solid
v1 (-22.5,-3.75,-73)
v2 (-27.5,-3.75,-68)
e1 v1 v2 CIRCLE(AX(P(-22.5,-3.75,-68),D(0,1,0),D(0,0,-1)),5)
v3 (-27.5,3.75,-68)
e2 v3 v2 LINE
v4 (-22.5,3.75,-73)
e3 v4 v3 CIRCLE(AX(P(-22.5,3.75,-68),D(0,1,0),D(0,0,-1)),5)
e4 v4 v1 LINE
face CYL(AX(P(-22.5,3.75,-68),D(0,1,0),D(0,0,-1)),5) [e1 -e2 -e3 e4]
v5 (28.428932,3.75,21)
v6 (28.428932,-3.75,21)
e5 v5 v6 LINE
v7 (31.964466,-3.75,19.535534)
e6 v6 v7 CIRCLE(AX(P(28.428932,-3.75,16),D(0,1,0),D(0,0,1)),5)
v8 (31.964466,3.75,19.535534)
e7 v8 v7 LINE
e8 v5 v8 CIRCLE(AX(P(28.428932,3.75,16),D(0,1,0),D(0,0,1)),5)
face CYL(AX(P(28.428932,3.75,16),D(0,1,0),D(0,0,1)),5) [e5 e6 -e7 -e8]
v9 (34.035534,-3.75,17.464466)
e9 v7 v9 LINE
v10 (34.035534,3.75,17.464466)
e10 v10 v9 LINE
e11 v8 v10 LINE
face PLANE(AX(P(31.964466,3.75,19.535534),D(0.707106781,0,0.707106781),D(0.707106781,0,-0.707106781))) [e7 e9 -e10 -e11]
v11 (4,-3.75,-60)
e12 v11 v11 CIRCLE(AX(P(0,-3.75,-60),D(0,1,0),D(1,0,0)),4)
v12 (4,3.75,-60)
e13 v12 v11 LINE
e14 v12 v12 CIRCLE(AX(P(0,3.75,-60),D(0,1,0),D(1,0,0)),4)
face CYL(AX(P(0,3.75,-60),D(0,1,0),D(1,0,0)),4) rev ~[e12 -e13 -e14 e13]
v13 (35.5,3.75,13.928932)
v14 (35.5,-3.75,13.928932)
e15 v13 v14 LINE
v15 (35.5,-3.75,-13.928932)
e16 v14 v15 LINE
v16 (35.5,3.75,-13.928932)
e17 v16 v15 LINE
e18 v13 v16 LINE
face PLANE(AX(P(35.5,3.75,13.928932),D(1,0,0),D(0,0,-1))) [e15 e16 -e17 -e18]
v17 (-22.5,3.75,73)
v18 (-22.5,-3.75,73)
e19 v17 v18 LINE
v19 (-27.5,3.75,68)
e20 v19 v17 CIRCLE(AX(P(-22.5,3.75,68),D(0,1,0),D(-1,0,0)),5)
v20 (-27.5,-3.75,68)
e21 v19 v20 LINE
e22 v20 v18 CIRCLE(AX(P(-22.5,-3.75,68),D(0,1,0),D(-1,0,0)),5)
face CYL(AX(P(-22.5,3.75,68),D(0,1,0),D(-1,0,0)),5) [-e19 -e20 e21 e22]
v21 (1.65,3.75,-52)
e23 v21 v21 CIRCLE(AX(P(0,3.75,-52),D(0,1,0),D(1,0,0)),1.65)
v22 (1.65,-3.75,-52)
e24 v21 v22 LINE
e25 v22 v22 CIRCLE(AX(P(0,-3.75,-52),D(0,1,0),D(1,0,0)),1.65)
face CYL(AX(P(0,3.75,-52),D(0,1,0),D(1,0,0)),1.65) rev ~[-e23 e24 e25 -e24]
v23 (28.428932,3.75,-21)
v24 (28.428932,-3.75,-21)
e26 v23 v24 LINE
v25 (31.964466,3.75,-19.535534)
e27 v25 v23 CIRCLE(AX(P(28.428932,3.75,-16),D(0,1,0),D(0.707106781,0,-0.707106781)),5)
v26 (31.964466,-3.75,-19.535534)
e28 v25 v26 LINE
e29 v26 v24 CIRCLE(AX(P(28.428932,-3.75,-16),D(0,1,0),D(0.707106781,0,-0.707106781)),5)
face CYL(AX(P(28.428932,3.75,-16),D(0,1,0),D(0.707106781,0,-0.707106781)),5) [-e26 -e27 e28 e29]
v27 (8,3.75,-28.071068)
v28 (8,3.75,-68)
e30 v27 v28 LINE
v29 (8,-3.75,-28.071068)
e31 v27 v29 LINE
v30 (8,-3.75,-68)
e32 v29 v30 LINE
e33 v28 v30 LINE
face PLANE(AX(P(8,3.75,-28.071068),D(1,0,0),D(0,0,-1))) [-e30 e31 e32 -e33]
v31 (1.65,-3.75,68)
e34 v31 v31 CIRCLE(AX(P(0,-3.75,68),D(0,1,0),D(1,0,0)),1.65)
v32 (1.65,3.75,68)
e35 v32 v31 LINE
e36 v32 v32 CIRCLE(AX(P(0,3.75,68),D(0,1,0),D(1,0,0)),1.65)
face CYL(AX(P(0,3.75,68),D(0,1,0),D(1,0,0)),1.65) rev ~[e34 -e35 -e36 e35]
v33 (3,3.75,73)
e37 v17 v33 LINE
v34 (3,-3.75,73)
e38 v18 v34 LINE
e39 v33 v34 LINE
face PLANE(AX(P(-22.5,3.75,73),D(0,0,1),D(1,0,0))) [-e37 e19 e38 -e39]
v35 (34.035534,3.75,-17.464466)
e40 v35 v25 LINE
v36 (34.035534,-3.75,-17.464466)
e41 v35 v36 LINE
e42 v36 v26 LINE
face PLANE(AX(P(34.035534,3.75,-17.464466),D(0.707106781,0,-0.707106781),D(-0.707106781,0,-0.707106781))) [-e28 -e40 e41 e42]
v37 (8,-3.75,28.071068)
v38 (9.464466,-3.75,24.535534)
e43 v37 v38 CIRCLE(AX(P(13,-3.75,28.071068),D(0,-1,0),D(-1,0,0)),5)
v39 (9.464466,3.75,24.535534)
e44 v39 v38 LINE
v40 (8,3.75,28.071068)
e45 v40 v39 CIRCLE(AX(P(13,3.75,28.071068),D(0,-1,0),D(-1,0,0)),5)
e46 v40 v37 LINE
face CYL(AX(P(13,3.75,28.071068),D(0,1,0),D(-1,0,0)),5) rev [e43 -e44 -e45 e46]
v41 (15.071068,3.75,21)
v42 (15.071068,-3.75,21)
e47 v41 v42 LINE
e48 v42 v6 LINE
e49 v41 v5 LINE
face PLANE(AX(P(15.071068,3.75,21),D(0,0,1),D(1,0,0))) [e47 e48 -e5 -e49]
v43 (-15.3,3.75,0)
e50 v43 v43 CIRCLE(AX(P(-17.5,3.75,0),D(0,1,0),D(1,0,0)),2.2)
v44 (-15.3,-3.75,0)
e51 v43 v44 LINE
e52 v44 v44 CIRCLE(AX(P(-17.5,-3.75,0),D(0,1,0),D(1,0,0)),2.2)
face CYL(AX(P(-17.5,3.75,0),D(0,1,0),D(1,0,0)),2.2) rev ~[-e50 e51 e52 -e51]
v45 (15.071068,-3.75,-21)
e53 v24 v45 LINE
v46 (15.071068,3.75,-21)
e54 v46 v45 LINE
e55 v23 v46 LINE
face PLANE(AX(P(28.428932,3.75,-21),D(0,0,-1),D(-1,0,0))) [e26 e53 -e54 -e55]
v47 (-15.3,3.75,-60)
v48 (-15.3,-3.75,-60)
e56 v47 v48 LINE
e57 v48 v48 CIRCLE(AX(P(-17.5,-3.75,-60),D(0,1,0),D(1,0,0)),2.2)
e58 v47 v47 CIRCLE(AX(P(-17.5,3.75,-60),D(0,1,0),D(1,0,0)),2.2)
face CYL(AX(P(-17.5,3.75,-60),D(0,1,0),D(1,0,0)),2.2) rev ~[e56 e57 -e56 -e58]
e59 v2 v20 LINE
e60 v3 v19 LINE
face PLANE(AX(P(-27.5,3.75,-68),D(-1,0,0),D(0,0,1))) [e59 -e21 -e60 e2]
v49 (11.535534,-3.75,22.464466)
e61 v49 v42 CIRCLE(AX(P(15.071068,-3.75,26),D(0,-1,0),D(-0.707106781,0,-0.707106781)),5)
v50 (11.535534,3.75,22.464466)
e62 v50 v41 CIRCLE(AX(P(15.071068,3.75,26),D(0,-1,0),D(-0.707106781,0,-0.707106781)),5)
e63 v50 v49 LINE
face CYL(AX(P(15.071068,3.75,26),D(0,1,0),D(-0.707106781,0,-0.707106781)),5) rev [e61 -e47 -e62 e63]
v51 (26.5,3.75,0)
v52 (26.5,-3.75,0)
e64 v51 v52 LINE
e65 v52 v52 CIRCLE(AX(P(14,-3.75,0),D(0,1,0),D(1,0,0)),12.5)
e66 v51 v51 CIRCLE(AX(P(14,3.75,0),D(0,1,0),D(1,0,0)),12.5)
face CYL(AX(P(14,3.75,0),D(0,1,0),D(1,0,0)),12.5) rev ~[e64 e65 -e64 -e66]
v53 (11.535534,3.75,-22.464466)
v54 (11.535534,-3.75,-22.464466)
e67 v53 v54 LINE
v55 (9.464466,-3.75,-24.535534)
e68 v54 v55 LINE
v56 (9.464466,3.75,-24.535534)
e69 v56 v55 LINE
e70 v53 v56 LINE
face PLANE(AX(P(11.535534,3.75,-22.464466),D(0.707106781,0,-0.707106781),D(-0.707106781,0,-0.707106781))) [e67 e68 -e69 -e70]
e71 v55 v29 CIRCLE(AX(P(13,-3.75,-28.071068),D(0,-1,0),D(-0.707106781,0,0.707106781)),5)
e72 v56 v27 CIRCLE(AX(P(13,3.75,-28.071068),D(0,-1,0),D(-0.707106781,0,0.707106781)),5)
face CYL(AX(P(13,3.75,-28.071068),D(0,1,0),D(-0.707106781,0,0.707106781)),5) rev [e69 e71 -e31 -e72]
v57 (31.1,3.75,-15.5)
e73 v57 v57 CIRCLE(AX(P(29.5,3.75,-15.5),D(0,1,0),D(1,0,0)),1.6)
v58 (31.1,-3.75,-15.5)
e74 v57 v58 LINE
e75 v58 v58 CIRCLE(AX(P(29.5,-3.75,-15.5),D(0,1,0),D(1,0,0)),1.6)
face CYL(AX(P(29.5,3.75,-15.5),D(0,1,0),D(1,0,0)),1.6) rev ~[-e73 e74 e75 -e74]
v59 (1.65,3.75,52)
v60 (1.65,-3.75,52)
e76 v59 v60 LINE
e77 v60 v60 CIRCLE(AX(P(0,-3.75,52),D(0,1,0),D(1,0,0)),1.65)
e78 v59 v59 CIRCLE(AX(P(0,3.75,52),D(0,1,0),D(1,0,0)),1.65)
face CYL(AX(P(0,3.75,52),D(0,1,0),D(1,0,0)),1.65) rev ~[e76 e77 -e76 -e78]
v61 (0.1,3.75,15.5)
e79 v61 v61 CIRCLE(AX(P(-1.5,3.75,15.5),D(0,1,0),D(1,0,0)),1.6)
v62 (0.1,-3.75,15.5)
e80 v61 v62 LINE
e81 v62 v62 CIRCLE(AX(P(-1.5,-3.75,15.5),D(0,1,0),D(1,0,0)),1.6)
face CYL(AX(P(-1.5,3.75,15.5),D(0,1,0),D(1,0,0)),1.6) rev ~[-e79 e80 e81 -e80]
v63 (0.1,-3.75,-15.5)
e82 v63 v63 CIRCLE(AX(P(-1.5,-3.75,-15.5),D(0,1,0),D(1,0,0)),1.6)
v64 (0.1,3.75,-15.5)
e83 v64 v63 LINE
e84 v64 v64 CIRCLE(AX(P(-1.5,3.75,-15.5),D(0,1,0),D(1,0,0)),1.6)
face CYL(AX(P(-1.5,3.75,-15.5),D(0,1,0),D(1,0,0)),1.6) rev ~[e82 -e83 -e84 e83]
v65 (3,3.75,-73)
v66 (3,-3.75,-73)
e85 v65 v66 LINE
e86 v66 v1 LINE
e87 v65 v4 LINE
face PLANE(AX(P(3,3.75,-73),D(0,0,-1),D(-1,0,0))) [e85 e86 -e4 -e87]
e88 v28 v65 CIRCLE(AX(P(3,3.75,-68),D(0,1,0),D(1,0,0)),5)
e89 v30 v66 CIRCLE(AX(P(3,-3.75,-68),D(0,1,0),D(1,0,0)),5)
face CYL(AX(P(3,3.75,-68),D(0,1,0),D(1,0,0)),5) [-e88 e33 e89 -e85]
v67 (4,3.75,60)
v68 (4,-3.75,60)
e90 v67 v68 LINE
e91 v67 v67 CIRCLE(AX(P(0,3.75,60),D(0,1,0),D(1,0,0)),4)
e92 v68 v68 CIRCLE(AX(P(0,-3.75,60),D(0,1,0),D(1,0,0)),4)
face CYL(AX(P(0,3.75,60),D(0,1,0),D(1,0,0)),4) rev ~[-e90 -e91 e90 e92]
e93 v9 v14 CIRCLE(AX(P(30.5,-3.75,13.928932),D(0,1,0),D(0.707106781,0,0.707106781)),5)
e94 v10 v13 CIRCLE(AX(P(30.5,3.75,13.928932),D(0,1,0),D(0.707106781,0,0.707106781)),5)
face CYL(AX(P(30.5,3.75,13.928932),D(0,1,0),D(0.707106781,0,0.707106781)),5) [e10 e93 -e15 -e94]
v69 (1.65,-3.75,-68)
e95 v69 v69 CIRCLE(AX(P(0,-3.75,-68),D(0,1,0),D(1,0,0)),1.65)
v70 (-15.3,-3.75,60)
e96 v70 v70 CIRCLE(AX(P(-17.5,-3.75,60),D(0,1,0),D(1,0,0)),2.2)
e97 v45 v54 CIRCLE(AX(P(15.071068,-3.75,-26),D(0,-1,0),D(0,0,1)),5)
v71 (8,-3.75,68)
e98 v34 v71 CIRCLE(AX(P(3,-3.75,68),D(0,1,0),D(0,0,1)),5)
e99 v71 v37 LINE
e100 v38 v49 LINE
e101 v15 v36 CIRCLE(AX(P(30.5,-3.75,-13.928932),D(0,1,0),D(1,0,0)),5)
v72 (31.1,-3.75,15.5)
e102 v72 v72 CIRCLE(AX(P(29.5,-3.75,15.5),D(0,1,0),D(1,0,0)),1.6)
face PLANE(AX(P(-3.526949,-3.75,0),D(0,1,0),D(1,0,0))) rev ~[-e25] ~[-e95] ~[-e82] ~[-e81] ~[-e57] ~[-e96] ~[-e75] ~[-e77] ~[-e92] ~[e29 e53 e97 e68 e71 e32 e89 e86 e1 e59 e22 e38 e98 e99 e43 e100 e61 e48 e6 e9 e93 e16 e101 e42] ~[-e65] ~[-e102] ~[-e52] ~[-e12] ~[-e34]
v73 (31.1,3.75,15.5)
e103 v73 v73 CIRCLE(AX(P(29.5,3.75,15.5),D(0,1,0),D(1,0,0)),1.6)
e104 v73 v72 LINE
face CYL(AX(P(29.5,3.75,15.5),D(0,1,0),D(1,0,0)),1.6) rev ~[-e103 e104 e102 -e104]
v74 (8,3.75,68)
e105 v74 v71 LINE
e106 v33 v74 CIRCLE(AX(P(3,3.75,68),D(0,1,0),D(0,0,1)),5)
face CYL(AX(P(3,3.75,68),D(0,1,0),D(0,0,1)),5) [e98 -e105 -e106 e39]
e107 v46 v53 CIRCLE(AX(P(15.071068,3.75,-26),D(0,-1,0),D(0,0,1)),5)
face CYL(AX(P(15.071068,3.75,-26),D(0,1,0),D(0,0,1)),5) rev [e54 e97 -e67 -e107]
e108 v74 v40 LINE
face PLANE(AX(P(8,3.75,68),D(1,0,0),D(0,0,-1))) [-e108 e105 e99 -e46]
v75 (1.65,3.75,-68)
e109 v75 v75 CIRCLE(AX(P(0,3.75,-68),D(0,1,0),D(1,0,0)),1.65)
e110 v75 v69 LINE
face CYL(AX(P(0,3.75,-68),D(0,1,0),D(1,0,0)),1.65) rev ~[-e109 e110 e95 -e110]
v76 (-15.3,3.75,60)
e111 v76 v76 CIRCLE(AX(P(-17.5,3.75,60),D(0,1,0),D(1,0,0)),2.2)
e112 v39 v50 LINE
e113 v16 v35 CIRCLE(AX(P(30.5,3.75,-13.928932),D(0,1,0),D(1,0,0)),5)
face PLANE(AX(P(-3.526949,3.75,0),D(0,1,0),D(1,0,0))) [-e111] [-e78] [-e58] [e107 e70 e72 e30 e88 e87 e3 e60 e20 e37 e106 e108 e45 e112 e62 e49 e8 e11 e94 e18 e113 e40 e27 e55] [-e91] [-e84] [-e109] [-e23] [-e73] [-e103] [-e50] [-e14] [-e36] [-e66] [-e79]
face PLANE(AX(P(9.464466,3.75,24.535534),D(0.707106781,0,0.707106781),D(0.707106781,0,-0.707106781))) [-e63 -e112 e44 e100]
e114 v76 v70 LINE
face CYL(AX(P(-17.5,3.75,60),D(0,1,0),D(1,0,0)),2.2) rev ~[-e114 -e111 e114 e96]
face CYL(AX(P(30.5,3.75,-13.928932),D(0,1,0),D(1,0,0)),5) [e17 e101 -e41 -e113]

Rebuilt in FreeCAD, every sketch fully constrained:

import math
import FreeCAD as App
import Part
import Sketcher

V = App.Vector
Q = App.Units.Quantity

doc = App.newDocument("Part")
body = doc.addObject("PartDesign::Body", "Body")

# Sketch on XZ plane
sketch1 = body.newObject("Sketcher::SketchObject", "Sketch")
sketch1.AttachmentSupport = (doc.getObject("XZ_Plane"), [""])
sketch1.MapMode = "FlatFace"
sketch1.AttachmentOffset = App.Placement(V(0, 0, -3.75), App.Rotation())
sketch1.addGeometry(Part.LineSegment(V(34, -17.5, 0), V(32, -19.5, 0)), False)
sketch1.addGeometry(Part.ArcOfCircle(Part.Circle(V(28.4, -16, 0), V(0, 0, 1), 5), math.radians(-90), math.radians(-45)), False)
sketch1.addGeometry(Part.LineSegment(V(28.4, -21, 0), V(15.1, -21, 0)), False)
sketch1.addGeometry(Part.ArcOfCircle(Part.Circle(V(15.1, -26, 0), V(0, 0, 1), 5), math.radians(90), math.radians(135)), False)
sketch1.addGeometry(Part.LineSegment(V(11.5, -22.5, 0), V(9.5, -24.5, 0)), False)
sketch1.addGeometry(Part.ArcOfCircle(Part.Circle(V(13, -28.1, 0), V(0, 0, 1), 5), math.radians(135), math.radians(180)), False)
sketch1.addGeometry(Part.LineSegment(V(8, -28.1, 0), V(8, -68, 0)), False)
sketch1.addGeometry(Part.ArcOfCircle(Part.Circle(V(3, -68, 0), V(0, 0, 1), 5), math.radians(-90), math.radians(0)), False)
sketch1.addGeometry(Part.LineSegment(V(3, -73, 0), V(-22.5, -73, 0)), False)
sketch1.addGeometry(Part.ArcOfCircle(Part.Circle(V(-22.5, -68, 0), V(0, 0, 1), 5), math.radians(180), math.radians(270)), False)
sketch1.addGeometry(Part.LineSegment(V(-27.5, -68, 0), V(-27.5, 68, 0)), False)
sketch1.addGeometry(Part.ArcOfCircle(Part.Circle(V(-22.5, 68, 0), V(0, 0, 1), 5), math.radians(90), math.radians(180)), False)
sketch1.addGeometry(Part.LineSegment(V(-22.5, 73, 0), V(3, 73, 0)), False)
sketch1.addGeometry(Part.ArcOfCircle(Part.Circle(V(3, 68, 0), V(0, 0, 1), 5), math.radians(0), math.radians(90)), False)
sketch1.addGeometry(Part.LineSegment(V(8, 68, 0), V(8, 28.1, 0)), False)
sketch1.addGeometry(Part.ArcOfCircle(Part.Circle(V(13, 28.1, 0), V(0, 0, 1), 5), math.radians(180), math.radians(225)), False)
sketch1.addGeometry(Part.LineSegment(V(9.5, 24.5, 0), V(11.5, 22.5, 0)), False)
sketch1.addGeometry(Part.ArcOfCircle(Part.Circle(V(15.1, 26, 0), V(0, 0, 1), 5), math.radians(-135), math.radians(-90)), False)
sketch1.addGeometry(Part.LineSegment(V(15.1, 21, 0), V(28.4, 21, 0)), False)
sketch1.addGeometry(Part.ArcOfCircle(Part.Circle(V(28.4, 16, 0), V(0, 0, 1), 5), math.radians(45), math.radians(90)), False)
sketch1.addGeometry(Part.LineSegment(V(32, 19.5, 0), V(34, 17.5, 0)), False)
sketch1.addGeometry(Part.ArcOfCircle(Part.Circle(V(30.5, 13.9, 0), V(0, 0, 1), 5), math.radians(0), math.radians(45)), False)
sketch1.addGeometry(Part.LineSegment(V(35.5, 13.9, 0), V(35.5, -13.9, 0)), False)
sketch1.addGeometry(Part.ArcOfCircle(Part.Circle(V(30.5, -13.9, 0), V(0, 0, 1), 5), math.radians(-45), math.radians(0)), False)
sketch1.addGeometry(Part.Circle(V(-17.5, 60, 0), V(0, 0, 1), 2.2), False)
sketch1.addGeometry(Part.Circle(V(0, 68, 0), V(0, 0, 1), 1.6), False)
sketch1.addGeometry(Part.Circle(V(0, 60, 0), V(0, 0, 1), 4), False)
sketch1.addGeometry(Part.Circle(V(0, 52, 0), V(0, 0, 1), 1.6), False)
sketch1.addGeometry(Part.Circle(V(-1.5, 15.5, 0), V(0, 0, 1), 1.6), False)
sketch1.addGeometry(Part.Circle(V(29.5, 15.5, 0), V(0, 0, 1), 1.6), False)
sketch1.addGeometry(Part.Circle(V(-17.5, 0, 0), V(0, 0, 1), 2.2), False)
sketch1.addGeometry(Part.Circle(V(-1.5, -15.5, 0), V(0, 0, 1), 1.6), False)
sketch1.addGeometry(Part.Circle(V(-17.5, -60, 0), V(0, 0, 1), 2.2), False)
sketch1.addGeometry(Part.Circle(V(0, -52, 0), V(0, 0, 1), 1.6), False)
sketch1.addGeometry(Part.Circle(V(0, -60, 0), V(0, 0, 1), 4), False)
sketch1.addGeometry(Part.Circle(V(0, -68, 0), V(0, 0, 1), 1.6), False)
sketch1.addGeometry(Part.Circle(V(14, 0, 0), V(0, 0, 1), 12.5), False)
sketch1.addGeometry(Part.Circle(V(29.5, -15.5, 0), V(0, 0, 1), 1.6), False)
sketch1.addConstraint(Sketcher.Constraint("Tangent", 0, 2, 1, 2))
sketch1.addConstraint(Sketcher.Constraint("Tangent", 1, 1, 2, 1))
sketch1.addConstraint(Sketcher.Constraint("Tangent", 2, 2, 3, 1))
sketch1.addConstraint(Sketcher.Constraint("Tangent", 3, 2, 4, 1))
sketch1.addConstraint(Sketcher.Constraint("Tangent", 4, 2, 5, 1))
sketch1.addConstraint(Sketcher.Constraint("Tangent", 5, 2, 6, 1))
sketch1.addConstraint(Sketcher.Constraint("Tangent", 6, 2, 7, 2))
sketch1.addConstraint(Sketcher.Constraint("Tangent", 7, 1, 8, 1))
sketch1.addConstraint(Sketcher.Constraint("Tangent", 8, 2, 9, 2))
sketch1.addConstraint(Sketcher.Constraint("Tangent", 9, 1, 10, 1))
sketch1.addConstraint(Sketcher.Constraint("Tangent", 10, 2, 11, 2))
sketch1.addConstraint(Sketcher.Constraint("Tangent", 11, 1, 12, 1))
sketch1.addConstraint(Sketcher.Constraint("Tangent", 12, 2, 13, 2))
sketch1.addConstraint(Sketcher.Constraint("Tangent", 13, 1, 14, 1))
sketch1.addConstraint(Sketcher.Constraint("Tangent", 14, 2, 15, 1))
sketch1.addConstraint(Sketcher.Constraint("Tangent", 15, 2, 16, 1))
sketch1.addConstraint(Sketcher.Constraint("Tangent", 16, 2, 17, 1))
sketch1.addConstraint(Sketcher.Constraint("Tangent", 17, 2, 18, 1))
sketch1.addConstraint(Sketcher.Constraint("Tangent", 18, 2, 19, 2))
sketch1.addConstraint(Sketcher.Constraint("Tangent", 19, 1, 20, 1))
sketch1.addConstraint(Sketcher.Constraint("Tangent", 20, 2, 21, 2))
sketch1.addConstraint(Sketcher.Constraint("Tangent", 21, 1, 22, 1))
sketch1.addConstraint(Sketcher.Constraint("Tangent", 22, 2, 23, 2))
sketch1.addConstraint(Sketcher.Constraint("Tangent", 23, 1, 0, 1))
sketch1.addConstraint(Sketcher.Constraint("Horizontal", 2))
sketch1.addConstraint(Sketcher.Constraint("Vertical", 6))
sketch1.addConstraint(Sketcher.Constraint("Horizontal", 8))
sketch1.addConstraint(Sketcher.Constraint("Vertical", 10))
sketch1.addConstraint(Sketcher.Constraint("Horizontal", 12))
sketch1.addConstraint(Sketcher.Constraint("Vertical", 14))
sketch1.addConstraint(Sketcher.Constraint("Horizontal", 18))
sketch1.addConstraint(Sketcher.Constraint("Vertical", 22))
sketch1.addConstraint(Sketcher.Constraint("Equal", 1, 3))
sketch1.addConstraint(Sketcher.Constraint("Equal", 3, 5))
sketch1.addConstraint(Sketcher.Constraint("Equal", 5, 7))
sketch1.addConstraint(Sketcher.Constraint("Equal", 7, 9))
sketch1.addConstraint(Sketcher.Constraint("Equal", 9, 11))
sketch1.addConstraint(Sketcher.Constraint("Equal", 11, 13))
sketch1.addConstraint(Sketcher.Constraint("Equal", 13, 15))
sketch1.addConstraint(Sketcher.Constraint("Equal", 15, 17))
sketch1.addConstraint(Sketcher.Constraint("Equal", 17, 19))
sketch1.addConstraint(Sketcher.Constraint("Equal", 19, 21))
sketch1.addConstraint(Sketcher.Constraint("Equal", 21, 23))
sketch1.addConstraint(Sketcher.Constraint("Equal", 25, 27))
sketch1.addConstraint(Sketcher.Constraint("Equal", 28, 29))
sketch1.addConstraint(Sketcher.Constraint("Equal", 24, 30))
sketch1.addConstraint(Sketcher.Constraint("Equal", 29, 31))
sketch1.addConstraint(Sketcher.Constraint("Equal", 30, 32))
sketch1.addConstraint(Sketcher.Constraint("Equal", 27, 33))
sketch1.addConstraint(Sketcher.Constraint("Equal", 26, 34))
sketch1.addConstraint(Sketcher.Constraint("Equal", 33, 35))
sketch1.addConstraint(Sketcher.Constraint("Equal", 31, 37))
sketch1.addConstraint(Sketcher.Constraint("Symmetric", 27, 3, 33, 3, -1, 1))
sketch1.addConstraint(Sketcher.Constraint("Symmetric", 26, 3, 34, 3, -1, 1))
sketch1.addConstraint(Sketcher.Constraint("Symmetric", 25, 3, 35, 3, -1, 1))
sketch1.addConstraint(Sketcher.Constraint("Symmetric", 7, 3, 13, 3, -1))
sketch1.addConstraint(Sketcher.Constraint("Symmetric", 3, 3, 17, 3, -1))
sketch1.addConstraint(Sketcher.Constraint("Symmetric", 28, 3, 31, 3, -1))
sketch1.addConstraint(Sketcher.Constraint("Symmetric", 24, 3, 32, 3, -1))
sketch1.addConstraint(Sketcher.Constraint("Symmetric", 29, 3, 37, 3, -1))
sketch1.addConstraint(Sketcher.Constraint("Symmetric", 0, 2, 19, 1, -1))
sketch1.addConstraint(Sketcher.Constraint("PointOnObject", 25, 3, -2))
sketch1.addConstraint(Sketcher.Constraint("PointOnObject", 26, 3, -2))
sketch1.addConstraint(Sketcher.Constraint("PointOnObject", 27, 3, -2))
sketch1.addConstraint(Sketcher.Constraint("PointOnObject", 30, 3, -1))
sketch1.addConstraint(Sketcher.Constraint("PointOnObject", 36, 3, -1))
sketch1.addConstraint(Sketcher.Constraint("Parallel", 0, 4))
sketch1.addConstraint(Sketcher.Constraint("Perpendicular", 4, 16))
sketch1.addConstraint(Sketcher.Constraint("Parallel", 16, 20))
sketch1.addConstraint(Sketcher.Constraint("Horizontal", 13, 3, 25, 3))
sketch1.addConstraint(Sketcher.Constraint("Horizontal", 24, 3, 26, 3))
sketch1.addConstraint(Sketcher.Constraint("Horizontal", 28, 3, 29, 3))
sketch1.addConstraint(Sketcher.Constraint("Vertical", 24, 3, 30, 3))
sketch1.addConstraint(Sketcher.Constraint("Equal", 0, 4))
sketch1.addConstraint(Sketcher.Constraint("Diameter", 26, Q("8 mm")))
sketch1.addConstraint(Sketcher.Constraint("Diameter", 36, Q("25 mm")))
sketch1.addConstraint(Sketcher.Constraint("Radius", 1, Q("5 mm")))
sketch1.addConstraint(Sketcher.Constraint("Diameter", 24, Q("4.4 mm")))
sketch1.addConstraint(Sketcher.Constraint("Diameter", 25, Q("3.3 mm")))
sketch1.addConstraint(Sketcher.Constraint("Diameter", 28, Q("3.2 mm")))
sketch1.addConstraint(Sketcher.Constraint("DistanceY", 10, 1, 10, 2, Q("136 mm")))
sketch1.addConstraint(Sketcher.Constraint("DistanceX", 8, 2, 8, 1, Q("25.5 mm")))
sketch1.addConstraint(Sketcher.Constraint("DistanceY", 1, 3, -1, 1, Q("16 mm")))
sketch1.addConstraint(Sketcher.Constraint("DistanceX", -1, 1, 5, 3, Q("13 mm")))
sketch1.addConstraint(Sketcher.Constraint("DistanceY", -1, 1, 24, 3, Q("60 mm")))
sketch1.addConstraint(Sketcher.Constraint("DistanceY", -1, 1, 27, 3, Q("52 mm")))
sketch1.addConstraint(Sketcher.Constraint("DistanceX", -1, 1, 36, 3, Q("14 mm")))
sketch1.addConstraint(Sketcher.Constraint("DistanceX", 11, 3, 24, 3, Q("5 mm")))
sketch1.addConstraint(Sketcher.Constraint("DistanceX", 28, 3, 21, 3, Q("32 mm")))
sketch1.addConstraint(Sketcher.Constraint("DistanceX", 29, 3, 21, 3, Q("1 mm")))
sketch1.addConstraint(Sketcher.Constraint("DistanceX", 30, 3, 28, 3, Q("16 mm")))
sketch1.addConstraint(Sketcher.Constraint("DistanceY", 31, 3, 28, 3, Q("31 mm")))
sketch1.addConstraint(Sketcher.Constraint("DistanceY", 0, 2, 23, 3, Q("5.606602 mm")))
pad1 = body.newObject("PartDesign::Pad", "Pad")
pad1.Profile = sketch1
pad1.Length = 7.5

doc.recompute()
